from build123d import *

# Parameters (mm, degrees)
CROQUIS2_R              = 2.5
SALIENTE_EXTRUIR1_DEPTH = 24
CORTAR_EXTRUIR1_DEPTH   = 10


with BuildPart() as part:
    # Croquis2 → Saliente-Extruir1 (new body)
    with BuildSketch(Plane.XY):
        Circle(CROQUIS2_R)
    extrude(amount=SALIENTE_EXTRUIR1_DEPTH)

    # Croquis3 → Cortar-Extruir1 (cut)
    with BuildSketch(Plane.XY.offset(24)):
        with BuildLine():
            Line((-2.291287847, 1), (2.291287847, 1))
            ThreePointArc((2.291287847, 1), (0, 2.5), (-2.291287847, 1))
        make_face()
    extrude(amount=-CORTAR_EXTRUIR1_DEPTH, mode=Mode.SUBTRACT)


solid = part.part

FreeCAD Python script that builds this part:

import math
import FreeCAD as App
import Part
import Sketcher
from FreeCAD import Vector

doc = App.newDocument("Part")
body = doc.addObject("PartDesign::Body", "Body")

# Sketch on XY plane
sketch1 = body.newObject("Sketcher::SketchObject", "Sketch")
sketch1.AttachmentSupport = (doc.getObject("XY_Plane"), [""])
sketch1.MapMode = "FlatFace"
sketch1.addGeometry(Part.Circle(Vector(0, 0, 0), Vector(0, 0, 1), 2.5), False)
sketch1.addConstraint(Sketcher.Constraint("Coincident", 0, 3, -1, 1))
sketch1.addConstraint(Sketcher.Constraint("Diameter", 0, 5.0))
pad1 = body.newObject("PartDesign::Pad", "Pad")
pad1.Profile = sketch1
pad1.Length = 24

# Sketch on XY plane
sketch2 = body.newObject("Sketcher::SketchObject", "Sketch001")
sketch2.AttachmentSupport = (doc.getObject("XY_Plane"), [""])
sketch2.MapMode = "FlatFace"
sketch2.AttachmentOffset = App.Placement(Vector(0, 0, 24), App.Rotation())
sketch2.addGeometry(Part.LineSegment(Vector(-2.291288, 1, 0), Vector(2.291288, 1, 0)), False)
sketch2.addGeometry(Part.ArcOfCircle(Part.Circle(Vector(0, 0, 0), Vector(0, 0, 1), 2.5), math.radians(23.578178), math.radians(156.421822)), False)
sketch2.addConstraint(Sketcher.Constraint("Coincident", 0, 1, 1, 2))
sketch2.addConstraint(Sketcher.Constraint("Coincident", 1, 1, 0, 2))
sketch2.addConstraint(Sketcher.Constraint("Horizontal", 0))
sketch2.addConstraint(Sketcher.Constraint("Coincident", 1, 3, -1, 1))
sketch2.addConstraint(Sketcher.Constraint("Radius", 1, 2.5))
sketch2.addConstraint(Sketcher.Constraint("DistanceY", -1, 1, 0, 1, 1.0))
pocket1 = body.newObject("PartDesign::Pocket", "Pocket")
pocket1.Profile = sketch2
pocket1.Length = 10

doc.recompute()
